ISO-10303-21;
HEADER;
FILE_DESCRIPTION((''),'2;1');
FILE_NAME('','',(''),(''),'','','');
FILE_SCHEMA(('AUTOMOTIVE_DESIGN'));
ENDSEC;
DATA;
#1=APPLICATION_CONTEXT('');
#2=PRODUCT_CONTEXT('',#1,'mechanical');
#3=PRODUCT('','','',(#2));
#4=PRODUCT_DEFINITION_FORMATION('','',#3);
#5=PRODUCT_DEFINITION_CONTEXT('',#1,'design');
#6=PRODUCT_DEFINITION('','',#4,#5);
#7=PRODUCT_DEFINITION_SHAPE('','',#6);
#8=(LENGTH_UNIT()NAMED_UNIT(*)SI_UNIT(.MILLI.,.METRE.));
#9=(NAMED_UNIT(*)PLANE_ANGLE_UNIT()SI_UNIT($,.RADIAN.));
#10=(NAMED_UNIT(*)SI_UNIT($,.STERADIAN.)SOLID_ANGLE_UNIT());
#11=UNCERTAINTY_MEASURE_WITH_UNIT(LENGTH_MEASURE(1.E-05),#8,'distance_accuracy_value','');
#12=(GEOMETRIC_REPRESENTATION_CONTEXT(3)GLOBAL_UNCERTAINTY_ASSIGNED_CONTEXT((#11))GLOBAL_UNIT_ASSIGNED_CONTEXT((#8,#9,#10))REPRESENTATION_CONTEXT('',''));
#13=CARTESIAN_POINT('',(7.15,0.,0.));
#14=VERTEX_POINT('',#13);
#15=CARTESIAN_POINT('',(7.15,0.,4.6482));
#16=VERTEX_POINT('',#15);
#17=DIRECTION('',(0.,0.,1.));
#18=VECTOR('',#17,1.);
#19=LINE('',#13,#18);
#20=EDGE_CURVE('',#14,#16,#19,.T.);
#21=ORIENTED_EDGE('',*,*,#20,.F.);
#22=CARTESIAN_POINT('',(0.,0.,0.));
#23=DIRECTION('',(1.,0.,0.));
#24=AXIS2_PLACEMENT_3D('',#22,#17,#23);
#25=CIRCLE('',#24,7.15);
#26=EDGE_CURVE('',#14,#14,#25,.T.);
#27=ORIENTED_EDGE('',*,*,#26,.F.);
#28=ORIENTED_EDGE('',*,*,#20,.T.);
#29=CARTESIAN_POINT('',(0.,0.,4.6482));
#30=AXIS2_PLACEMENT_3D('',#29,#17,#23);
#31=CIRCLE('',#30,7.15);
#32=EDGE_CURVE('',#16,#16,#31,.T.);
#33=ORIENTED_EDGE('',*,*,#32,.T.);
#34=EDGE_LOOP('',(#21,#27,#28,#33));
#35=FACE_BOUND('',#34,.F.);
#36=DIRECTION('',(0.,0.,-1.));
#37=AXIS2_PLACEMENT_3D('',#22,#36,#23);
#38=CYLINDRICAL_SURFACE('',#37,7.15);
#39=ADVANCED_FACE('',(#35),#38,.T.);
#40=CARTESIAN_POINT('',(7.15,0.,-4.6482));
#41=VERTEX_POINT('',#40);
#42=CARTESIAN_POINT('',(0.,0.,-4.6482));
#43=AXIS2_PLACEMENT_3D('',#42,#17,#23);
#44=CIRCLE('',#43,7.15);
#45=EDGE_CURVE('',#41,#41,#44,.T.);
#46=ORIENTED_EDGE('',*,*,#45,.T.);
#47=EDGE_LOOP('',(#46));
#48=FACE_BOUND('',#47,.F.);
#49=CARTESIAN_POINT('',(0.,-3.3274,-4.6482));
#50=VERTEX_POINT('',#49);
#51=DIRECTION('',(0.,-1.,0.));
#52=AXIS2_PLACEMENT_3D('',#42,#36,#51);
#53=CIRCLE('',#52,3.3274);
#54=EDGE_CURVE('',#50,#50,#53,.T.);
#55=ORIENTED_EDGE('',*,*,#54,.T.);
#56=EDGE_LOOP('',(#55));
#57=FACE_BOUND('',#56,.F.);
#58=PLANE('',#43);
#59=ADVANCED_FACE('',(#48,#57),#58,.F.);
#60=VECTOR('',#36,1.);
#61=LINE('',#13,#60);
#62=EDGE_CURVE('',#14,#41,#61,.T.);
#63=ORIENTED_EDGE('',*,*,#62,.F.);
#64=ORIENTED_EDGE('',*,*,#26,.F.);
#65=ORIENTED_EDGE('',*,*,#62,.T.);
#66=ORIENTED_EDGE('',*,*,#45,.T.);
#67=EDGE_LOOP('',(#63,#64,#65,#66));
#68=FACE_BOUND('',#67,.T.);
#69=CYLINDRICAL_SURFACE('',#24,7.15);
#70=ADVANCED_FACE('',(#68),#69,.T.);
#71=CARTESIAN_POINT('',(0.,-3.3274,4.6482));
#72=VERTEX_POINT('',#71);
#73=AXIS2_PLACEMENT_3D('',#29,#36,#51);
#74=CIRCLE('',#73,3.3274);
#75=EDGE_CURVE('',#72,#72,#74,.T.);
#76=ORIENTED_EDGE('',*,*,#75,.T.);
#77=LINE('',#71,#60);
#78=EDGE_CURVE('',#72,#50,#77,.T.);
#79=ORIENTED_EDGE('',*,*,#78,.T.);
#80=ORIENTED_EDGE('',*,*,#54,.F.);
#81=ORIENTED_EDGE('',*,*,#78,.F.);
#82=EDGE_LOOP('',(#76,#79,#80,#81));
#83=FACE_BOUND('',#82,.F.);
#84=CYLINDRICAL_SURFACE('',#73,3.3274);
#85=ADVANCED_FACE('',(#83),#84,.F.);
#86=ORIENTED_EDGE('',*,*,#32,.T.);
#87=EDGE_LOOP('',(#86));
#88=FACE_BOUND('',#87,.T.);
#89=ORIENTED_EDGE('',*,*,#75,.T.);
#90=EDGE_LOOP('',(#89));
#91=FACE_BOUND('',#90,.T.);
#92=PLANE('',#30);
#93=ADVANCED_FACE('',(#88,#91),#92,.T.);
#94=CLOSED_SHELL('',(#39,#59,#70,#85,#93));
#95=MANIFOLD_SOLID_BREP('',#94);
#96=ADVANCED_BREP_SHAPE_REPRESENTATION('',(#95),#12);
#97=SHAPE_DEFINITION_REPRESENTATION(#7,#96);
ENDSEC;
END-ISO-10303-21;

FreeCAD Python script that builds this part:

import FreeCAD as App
import Part
import Sketcher

V = App.Vector
Q = App.Units.Quantity

doc = App.newDocument("Part")
body = doc.addObject("PartDesign::Body", "Body")

sketch1 = doc.addObject("Sketcher::SketchObject", "Sketch")
body.addObject(sketch1)
sketch1.AttachmentSupport = (doc.XY_Plane, [""])
sketch1.MapMode = "FlatFace"
sketch1.addGeometry(Part.Circle(V(0, 0, 0), V(0, 0, 1), 7), False)
sketch1.addConstraint(Sketcher.Constraint("Coincident", 0, 3, -1, 1))
sketch1.addConstraint(Sketcher.Constraint("Diameter", 0, Q("0.563 in")))
pad1 = doc.addObject("PartDesign::Pad", "Pad")
body.addObject(pad1)
pad1.Profile = sketch1
pad1.Length = Q("0.366 in")
pad1.Midplane = True

sketch2 = doc.addObject("Sketcher::SketchObject", "Sketch001")
body.addObject(sketch2)
sketch2.AttachmentSupport = (doc.XY_Plane, [""])
sketch2.MapMode = "FlatFace"
sketch2.AttachmentOffset = App.Placement(V(0, 0, 0.183 * 25.4), App.Rotation())
sketch2.addGeometry(Part.Circle(V(0, 0, 0), V(0, 0, 1), 3.3), False)
sketch2.addConstraint(Sketcher.Constraint("Coincident", 0, 3, -1, 1))
sketch2.addConstraint(Sketcher.Constraint("Diameter", 0, Q("0.262 in")))
doc.recompute()
hole = doc.addObject("PartDesign::Hole", "Hole")
body.addObject(hole)
hole.Profile = sketch2
hole.ThreadType = "None"
hole.Diameter = Q("0.262 in")
hole.DepthType = "ThroughAll"

doc.recompute()
